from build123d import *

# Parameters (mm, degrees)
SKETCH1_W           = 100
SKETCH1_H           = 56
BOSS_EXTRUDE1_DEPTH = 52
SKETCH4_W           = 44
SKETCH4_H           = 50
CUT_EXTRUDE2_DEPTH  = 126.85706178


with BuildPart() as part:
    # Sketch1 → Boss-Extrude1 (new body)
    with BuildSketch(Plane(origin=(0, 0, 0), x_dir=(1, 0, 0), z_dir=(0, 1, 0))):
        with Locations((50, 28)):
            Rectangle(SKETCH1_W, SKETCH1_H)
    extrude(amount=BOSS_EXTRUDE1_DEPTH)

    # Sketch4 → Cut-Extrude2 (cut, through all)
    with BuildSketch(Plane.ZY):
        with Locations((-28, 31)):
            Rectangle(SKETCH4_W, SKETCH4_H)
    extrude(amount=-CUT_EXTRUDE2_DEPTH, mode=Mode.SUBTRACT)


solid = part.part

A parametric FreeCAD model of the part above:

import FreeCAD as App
import Part
import Sketcher

V = App.Vector


def add_polygon(sketch, points):
    """Adds a closed chain of lines whose ends are joined by coincident constraints."""
    first, n = sketch.GeometryCount, len(points)
    for a, b in zip(points, points[1:] + points[:1]):
        sketch.addGeometry(Part.LineSegment(App.Vector(*a, 0), App.Vector(*b, 0)), False)
    for i in range(n):
        sketch.addConstraint(Sketcher.Constraint("Coincident", first + i, 2, first + (i + 1) % n, 1))

doc = App.newDocument("Part")
params = doc.addObject("Spreadsheet::Sheet", "Params")
for row, (alias, value) in enumerate([
    ("sketch1_width", "100 mm"),
    ("sketch1_height", "56 mm"),
    ("pad1_length", "52 mm"),
    ("sketch2_width", "50 mm"),
    ("sketch2_height", "44 mm"),
], start=1):
    params.set(f"A{row}", alias)
    params.set(f"B{row}", "=" + value)
    params.setAlias(f"B{row}", alias)

body = doc.addObject("PartDesign::Body", "Body")

# Sketch on XZ plane
sketch1 = doc.addObject("Sketcher::SketchObject", "Sketch")
body.addObject(sketch1)
sketch1.AttachmentSupport = (doc.XZ_Plane, [""])
sketch1.MapMode = "FlatFace"
add_polygon(sketch1, [(0, -56), (0, 0), (100, 0), (100, -56)])  # lines 0-3
sketch1.addConstraint(Sketcher.Constraint("Vertical", 0))
sketch1.addConstraint(Sketcher.Constraint("Horizontal", 1))
sketch1.addConstraint(Sketcher.Constraint("Vertical", 2))
sketch1.addConstraint(Sketcher.Constraint("Horizontal", 3))
sketch1.addConstraint(Sketcher.Constraint("Coincident", 0, 2, -1, 1))
sketch1.addConstraint(Sketcher.Constraint("DistanceX", 1, 1, 1, 2, 100.0))
sketch1.addConstraint(Sketcher.Constraint("DistanceY", 0, 1, 0, 2, 56.0))
sketch1.setExpression("Constraints[9]", "Params.sketch1_width")
sketch1.setExpression("Constraints[10]", "Params.sketch1_height")
pad1 = doc.addObject("PartDesign::Pad", "Pad")
body.addObject(pad1)
pad1.Profile = sketch1
pad1.setExpression("Length", "Params.pad1_length")
pad1.Reversed = True

# Sketch on YZ plane
sketch2 = doc.addObject("Sketcher::SketchObject", "Sketch001")
body.addObject(sketch2)
sketch2.AttachmentSupport = (doc.YZ_Plane, [""])
sketch2.MapMode = "FlatFace"
add_polygon(sketch2, [(56, -50), (6, -50), (6, -6), (56, -6)])  # lines 0-3
sketch2.addConstraint(Sketcher.Constraint("Horizontal", 0))
sketch2.addConstraint(Sketcher.Constraint("Vertical", 1))
sketch2.addConstraint(Sketcher.Constraint("Horizontal", 2))
sketch2.addConstraint(Sketcher.Constraint("Vertical", 3))
sketch2.addConstraint(Sketcher.Constraint("DistanceX", 0, 2, 0, 1, 50.0))
sketch2.addConstraint(Sketcher.Constraint("DistanceY", 1, 1, 1, 2, 44.0))
sketch2.addConstraint(Sketcher.Constraint("DistanceX", -1, 1, 0, 2, 6.0))
sketch2.addConstraint(Sketcher.Constraint("DistanceY", 0, 2, -1, 1, 50.0))
sketch2.setExpression("Constraints[8]", "Params.sketch2_width")
sketch2.setExpression("Constraints[9]", "Params.sketch2_height")
pocket1 = doc.addObject("PartDesign::Pocket", "Pocket")
body.addObject(pocket1)
pocket1.Profile = sketch2
pocket1.Type = "ThroughAll"
pocket1.Reversed = True

doc.recompute()
